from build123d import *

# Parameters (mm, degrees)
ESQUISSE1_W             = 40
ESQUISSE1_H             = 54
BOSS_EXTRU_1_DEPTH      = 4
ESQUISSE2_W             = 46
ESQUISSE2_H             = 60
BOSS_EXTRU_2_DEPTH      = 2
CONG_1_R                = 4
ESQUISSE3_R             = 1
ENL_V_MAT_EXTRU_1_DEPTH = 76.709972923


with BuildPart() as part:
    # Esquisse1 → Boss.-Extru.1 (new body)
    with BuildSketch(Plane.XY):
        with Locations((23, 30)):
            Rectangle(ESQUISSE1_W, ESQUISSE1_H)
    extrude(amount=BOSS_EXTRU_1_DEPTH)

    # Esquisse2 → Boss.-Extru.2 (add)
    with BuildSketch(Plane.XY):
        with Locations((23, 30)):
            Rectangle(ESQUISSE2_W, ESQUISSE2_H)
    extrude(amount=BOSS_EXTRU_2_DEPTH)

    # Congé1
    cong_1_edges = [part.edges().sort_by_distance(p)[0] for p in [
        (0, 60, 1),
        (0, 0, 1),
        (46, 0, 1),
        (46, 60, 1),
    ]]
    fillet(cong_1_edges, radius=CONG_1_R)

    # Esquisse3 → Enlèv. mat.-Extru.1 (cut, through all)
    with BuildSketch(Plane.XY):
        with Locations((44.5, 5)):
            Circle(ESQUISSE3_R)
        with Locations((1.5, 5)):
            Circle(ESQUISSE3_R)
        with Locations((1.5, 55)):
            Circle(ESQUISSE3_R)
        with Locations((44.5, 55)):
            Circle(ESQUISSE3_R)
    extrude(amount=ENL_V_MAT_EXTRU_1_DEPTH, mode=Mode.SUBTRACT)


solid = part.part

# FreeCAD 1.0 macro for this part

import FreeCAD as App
import Part
import Sketcher
Q = App.Units.Quantity


def edges_at(feature, points):
    """Names of the edges that pass closest to the given points."""
    edges = feature.Shape.Edges
    near = lambda p: min(range(len(edges)), key=lambda i: edges[i].distToShape(Part.Vertex(*p))[0])
    return sorted({f"Edge{near(p) + 1}" for p in points})


def add_polygon(sketch, points):
    """Adds a closed chain of lines whose ends are joined by coincident constraints."""
    first, n = sketch.GeometryCount, len(points)
    for a, b in zip(points, points[1:] + points[:1]):
        sketch.addGeometry(Part.LineSegment(App.Vector(*a, 0), App.Vector(*b, 0)), False)
    for i in range(n):
        sketch.addConstraint(Sketcher.Constraint("Coincident", first + i, 2, first + (i + 1) % n, 1))

doc = App.newDocument("Part")
params = doc.addObject("Spreadsheet::Sheet", "Params")
for row, (alias, value) in enumerate([
    ("sketch1_width", "40 mm"),
    ("sketch1_height", "54 mm"),
    ("pad1_length", "4 mm"),
    ("sketch2_width", "46 mm"),
    ("sketch2_height", "60 mm"),
    ("pad2_length", "2 mm"),
    ("fillet_radius", "4 mm"),
    ("sketch3_diameter", "2 mm"),
], start=1):
    params.set(f"A{row}", alias)
    params.set(f"B{row}", "=" + value)
    params.setAlias(f"B{row}", alias)

body = doc.addObject("PartDesign::Body", "Body")

# Sketch on XY plane
sketch1 = body.newObject("Sketcher::SketchObject", "Sketch")
sketch1.AttachmentSupport = (doc.getObject("XY_Plane"), [""])
sketch1.MapMode = "FlatFace"
add_polygon(sketch1, [(3, 57), (3, 3), (43, 3), (43, 57)])  # lines 0-3
sketch1.addConstraint(Sketcher.Constraint("Vertical", 0))
sketch1.addConstraint(Sketcher.Constraint("Horizontal", 1))
sketch1.addConstraint(Sketcher.Constraint("Vertical", 2))
sketch1.addConstraint(Sketcher.Constraint("Horizontal", 3))
sketch1.addConstraint(Sketcher.Constraint("DistanceX", 1, 1, 1, 2, Q("40 mm")))
sketch1.addConstraint(Sketcher.Constraint("DistanceY", 0, 2, 0, 1, Q("54 mm")))
sketch1.addConstraint(Sketcher.Constraint("DistanceX", -1, 1, 0, 2, Q("3 mm")))
sketch1.addConstraint(Sketcher.Constraint("DistanceY", -1, 1, 0, 2, Q("3 mm")))
sketch1.setExpression("Constraints[8]", "Params.sketch1_width")
sketch1.setExpression("Constraints[9]", "Params.sketch1_height")
pad1 = body.newObject("PartDesign::Pad", "Pad")
pad1.Profile = sketch1
pad1.setExpression("Length", "Params.pad1_length")

# Sketch on XY plane
sketch2 = body.newObject("Sketcher::SketchObject", "Sketch001")
sketch2.AttachmentSupport = (doc.getObject("XY_Plane"), [""])
sketch2.MapMode = "FlatFace"
add_polygon(sketch2, [(0, 60), (0, 0), (46, 0), (46, 60)])  # lines 0-3
sketch2.addConstraint(Sketcher.Constraint("Vertical", 0))
sketch2.addConstraint(Sketcher.Constraint("Horizontal", 1))
sketch2.addConstraint(Sketcher.Constraint("Vertical", 2))
sketch2.addConstraint(Sketcher.Constraint("Horizontal", 3))
sketch2.addConstraint(Sketcher.Constraint("Coincident", 0, 2, -1, 1))
sketch2.addConstraint(Sketcher.Constraint("DistanceX", 1, 1, 1, 2, Q("46 mm")))
sketch2.addConstraint(Sketcher.Constraint("DistanceY", 0, 2, 0, 1, Q("60 mm")))
sketch2.setExpression("Constraints[9]", "Params.sketch2_width")
sketch2.setExpression("Constraints[10]", "Params.sketch2_height")
pad2 = body.newObject("PartDesign::Pad", "Pad001")
pad2.Profile = sketch2
pad2.setExpression("Length", "Params.pad2_length")
doc.recompute()

fillet = body.newObject("PartDesign::Fillet", "Fillet")
fillet.Base = (pad2, edges_at(pad2, [
    (0, 60, 1),
    (0, 0, 1),
    (46, 0, 1),
    (46, 60, 1),
]))
fillet.setExpression("Radius", "Params.fillet_radius")

# Sketch on XY plane
sketch3 = body.newObject("Sketcher::SketchObject", "Sketch002")
sketch3.AttachmentSupport = (doc.getObject("XY_Plane"), [""])
sketch3.MapMode = "FlatFace"
sketch3.addGeometry(Part.Circle(App.Vector(44.5, 5, 0), App.Vector(0, 0, 1), 1), False)
sketch3.addGeometry(Part.Circle(App.Vector(1.5, 5, 0), App.Vector(0, 0, 1), 1), False)
sketch3.addGeometry(Part.Circle(App.Vector(1.5, 55, 0), App.Vector(0, 0, 1), 1), False)
sketch3.addGeometry(Part.Circle(App.Vector(44.5, 55, 0), App.Vector(0, 0, 1), 1), False)
sketch3.addConstraint(Sketcher.Constraint("Equal", 0, 1))
sketch3.addConstraint(Sketcher.Constraint("Equal", 1, 2))
sketch3.addConstraint(Sketcher.Constraint("Equal", 2, 3))
sketch3.addConstraint(Sketcher.Constraint("Horizontal", 0, 3, 1, 3))
sketch3.addConstraint(Sketcher.Constraint("Horizontal", 2, 3, 3, 3))
sketch3.addConstraint(Sketcher.Constraint("Vertical", 1, 3, 2, 3))
sketch3.addConstraint(Sketcher.Constraint("Vertical", 0, 3, 3, 3))
sketch3.addConstraint(Sketcher.Constraint("Diameter", 0, Q("2 mm")))
sketch3.addConstraint(Sketcher.Constraint("DistanceY", -1, 1, 0, 3, Q("5 mm")))
sketch3.addConstraint(Sketcher.Constraint("DistanceY", -1, 1, 2, 3, Q("55 mm")))
sketch3.addConstraint(Sketcher.Constraint("DistanceX", 1, 3, 0, 3, Q("43 mm")))
sketch3.addConstraint(Sketcher.Constraint("DistanceX", -1, 1, 0, 3, Q("44.5 mm")))
sketch3.setExpression("Constraints[7]", "Params.sketch3_diameter")
pocket1 = body.newObject("PartDesign::Pocket", "Pocket")
pocket1.Profile = sketch3
pocket1.Type = "ThroughAll"
pocket1.Reversed = True

doc.recompute()
